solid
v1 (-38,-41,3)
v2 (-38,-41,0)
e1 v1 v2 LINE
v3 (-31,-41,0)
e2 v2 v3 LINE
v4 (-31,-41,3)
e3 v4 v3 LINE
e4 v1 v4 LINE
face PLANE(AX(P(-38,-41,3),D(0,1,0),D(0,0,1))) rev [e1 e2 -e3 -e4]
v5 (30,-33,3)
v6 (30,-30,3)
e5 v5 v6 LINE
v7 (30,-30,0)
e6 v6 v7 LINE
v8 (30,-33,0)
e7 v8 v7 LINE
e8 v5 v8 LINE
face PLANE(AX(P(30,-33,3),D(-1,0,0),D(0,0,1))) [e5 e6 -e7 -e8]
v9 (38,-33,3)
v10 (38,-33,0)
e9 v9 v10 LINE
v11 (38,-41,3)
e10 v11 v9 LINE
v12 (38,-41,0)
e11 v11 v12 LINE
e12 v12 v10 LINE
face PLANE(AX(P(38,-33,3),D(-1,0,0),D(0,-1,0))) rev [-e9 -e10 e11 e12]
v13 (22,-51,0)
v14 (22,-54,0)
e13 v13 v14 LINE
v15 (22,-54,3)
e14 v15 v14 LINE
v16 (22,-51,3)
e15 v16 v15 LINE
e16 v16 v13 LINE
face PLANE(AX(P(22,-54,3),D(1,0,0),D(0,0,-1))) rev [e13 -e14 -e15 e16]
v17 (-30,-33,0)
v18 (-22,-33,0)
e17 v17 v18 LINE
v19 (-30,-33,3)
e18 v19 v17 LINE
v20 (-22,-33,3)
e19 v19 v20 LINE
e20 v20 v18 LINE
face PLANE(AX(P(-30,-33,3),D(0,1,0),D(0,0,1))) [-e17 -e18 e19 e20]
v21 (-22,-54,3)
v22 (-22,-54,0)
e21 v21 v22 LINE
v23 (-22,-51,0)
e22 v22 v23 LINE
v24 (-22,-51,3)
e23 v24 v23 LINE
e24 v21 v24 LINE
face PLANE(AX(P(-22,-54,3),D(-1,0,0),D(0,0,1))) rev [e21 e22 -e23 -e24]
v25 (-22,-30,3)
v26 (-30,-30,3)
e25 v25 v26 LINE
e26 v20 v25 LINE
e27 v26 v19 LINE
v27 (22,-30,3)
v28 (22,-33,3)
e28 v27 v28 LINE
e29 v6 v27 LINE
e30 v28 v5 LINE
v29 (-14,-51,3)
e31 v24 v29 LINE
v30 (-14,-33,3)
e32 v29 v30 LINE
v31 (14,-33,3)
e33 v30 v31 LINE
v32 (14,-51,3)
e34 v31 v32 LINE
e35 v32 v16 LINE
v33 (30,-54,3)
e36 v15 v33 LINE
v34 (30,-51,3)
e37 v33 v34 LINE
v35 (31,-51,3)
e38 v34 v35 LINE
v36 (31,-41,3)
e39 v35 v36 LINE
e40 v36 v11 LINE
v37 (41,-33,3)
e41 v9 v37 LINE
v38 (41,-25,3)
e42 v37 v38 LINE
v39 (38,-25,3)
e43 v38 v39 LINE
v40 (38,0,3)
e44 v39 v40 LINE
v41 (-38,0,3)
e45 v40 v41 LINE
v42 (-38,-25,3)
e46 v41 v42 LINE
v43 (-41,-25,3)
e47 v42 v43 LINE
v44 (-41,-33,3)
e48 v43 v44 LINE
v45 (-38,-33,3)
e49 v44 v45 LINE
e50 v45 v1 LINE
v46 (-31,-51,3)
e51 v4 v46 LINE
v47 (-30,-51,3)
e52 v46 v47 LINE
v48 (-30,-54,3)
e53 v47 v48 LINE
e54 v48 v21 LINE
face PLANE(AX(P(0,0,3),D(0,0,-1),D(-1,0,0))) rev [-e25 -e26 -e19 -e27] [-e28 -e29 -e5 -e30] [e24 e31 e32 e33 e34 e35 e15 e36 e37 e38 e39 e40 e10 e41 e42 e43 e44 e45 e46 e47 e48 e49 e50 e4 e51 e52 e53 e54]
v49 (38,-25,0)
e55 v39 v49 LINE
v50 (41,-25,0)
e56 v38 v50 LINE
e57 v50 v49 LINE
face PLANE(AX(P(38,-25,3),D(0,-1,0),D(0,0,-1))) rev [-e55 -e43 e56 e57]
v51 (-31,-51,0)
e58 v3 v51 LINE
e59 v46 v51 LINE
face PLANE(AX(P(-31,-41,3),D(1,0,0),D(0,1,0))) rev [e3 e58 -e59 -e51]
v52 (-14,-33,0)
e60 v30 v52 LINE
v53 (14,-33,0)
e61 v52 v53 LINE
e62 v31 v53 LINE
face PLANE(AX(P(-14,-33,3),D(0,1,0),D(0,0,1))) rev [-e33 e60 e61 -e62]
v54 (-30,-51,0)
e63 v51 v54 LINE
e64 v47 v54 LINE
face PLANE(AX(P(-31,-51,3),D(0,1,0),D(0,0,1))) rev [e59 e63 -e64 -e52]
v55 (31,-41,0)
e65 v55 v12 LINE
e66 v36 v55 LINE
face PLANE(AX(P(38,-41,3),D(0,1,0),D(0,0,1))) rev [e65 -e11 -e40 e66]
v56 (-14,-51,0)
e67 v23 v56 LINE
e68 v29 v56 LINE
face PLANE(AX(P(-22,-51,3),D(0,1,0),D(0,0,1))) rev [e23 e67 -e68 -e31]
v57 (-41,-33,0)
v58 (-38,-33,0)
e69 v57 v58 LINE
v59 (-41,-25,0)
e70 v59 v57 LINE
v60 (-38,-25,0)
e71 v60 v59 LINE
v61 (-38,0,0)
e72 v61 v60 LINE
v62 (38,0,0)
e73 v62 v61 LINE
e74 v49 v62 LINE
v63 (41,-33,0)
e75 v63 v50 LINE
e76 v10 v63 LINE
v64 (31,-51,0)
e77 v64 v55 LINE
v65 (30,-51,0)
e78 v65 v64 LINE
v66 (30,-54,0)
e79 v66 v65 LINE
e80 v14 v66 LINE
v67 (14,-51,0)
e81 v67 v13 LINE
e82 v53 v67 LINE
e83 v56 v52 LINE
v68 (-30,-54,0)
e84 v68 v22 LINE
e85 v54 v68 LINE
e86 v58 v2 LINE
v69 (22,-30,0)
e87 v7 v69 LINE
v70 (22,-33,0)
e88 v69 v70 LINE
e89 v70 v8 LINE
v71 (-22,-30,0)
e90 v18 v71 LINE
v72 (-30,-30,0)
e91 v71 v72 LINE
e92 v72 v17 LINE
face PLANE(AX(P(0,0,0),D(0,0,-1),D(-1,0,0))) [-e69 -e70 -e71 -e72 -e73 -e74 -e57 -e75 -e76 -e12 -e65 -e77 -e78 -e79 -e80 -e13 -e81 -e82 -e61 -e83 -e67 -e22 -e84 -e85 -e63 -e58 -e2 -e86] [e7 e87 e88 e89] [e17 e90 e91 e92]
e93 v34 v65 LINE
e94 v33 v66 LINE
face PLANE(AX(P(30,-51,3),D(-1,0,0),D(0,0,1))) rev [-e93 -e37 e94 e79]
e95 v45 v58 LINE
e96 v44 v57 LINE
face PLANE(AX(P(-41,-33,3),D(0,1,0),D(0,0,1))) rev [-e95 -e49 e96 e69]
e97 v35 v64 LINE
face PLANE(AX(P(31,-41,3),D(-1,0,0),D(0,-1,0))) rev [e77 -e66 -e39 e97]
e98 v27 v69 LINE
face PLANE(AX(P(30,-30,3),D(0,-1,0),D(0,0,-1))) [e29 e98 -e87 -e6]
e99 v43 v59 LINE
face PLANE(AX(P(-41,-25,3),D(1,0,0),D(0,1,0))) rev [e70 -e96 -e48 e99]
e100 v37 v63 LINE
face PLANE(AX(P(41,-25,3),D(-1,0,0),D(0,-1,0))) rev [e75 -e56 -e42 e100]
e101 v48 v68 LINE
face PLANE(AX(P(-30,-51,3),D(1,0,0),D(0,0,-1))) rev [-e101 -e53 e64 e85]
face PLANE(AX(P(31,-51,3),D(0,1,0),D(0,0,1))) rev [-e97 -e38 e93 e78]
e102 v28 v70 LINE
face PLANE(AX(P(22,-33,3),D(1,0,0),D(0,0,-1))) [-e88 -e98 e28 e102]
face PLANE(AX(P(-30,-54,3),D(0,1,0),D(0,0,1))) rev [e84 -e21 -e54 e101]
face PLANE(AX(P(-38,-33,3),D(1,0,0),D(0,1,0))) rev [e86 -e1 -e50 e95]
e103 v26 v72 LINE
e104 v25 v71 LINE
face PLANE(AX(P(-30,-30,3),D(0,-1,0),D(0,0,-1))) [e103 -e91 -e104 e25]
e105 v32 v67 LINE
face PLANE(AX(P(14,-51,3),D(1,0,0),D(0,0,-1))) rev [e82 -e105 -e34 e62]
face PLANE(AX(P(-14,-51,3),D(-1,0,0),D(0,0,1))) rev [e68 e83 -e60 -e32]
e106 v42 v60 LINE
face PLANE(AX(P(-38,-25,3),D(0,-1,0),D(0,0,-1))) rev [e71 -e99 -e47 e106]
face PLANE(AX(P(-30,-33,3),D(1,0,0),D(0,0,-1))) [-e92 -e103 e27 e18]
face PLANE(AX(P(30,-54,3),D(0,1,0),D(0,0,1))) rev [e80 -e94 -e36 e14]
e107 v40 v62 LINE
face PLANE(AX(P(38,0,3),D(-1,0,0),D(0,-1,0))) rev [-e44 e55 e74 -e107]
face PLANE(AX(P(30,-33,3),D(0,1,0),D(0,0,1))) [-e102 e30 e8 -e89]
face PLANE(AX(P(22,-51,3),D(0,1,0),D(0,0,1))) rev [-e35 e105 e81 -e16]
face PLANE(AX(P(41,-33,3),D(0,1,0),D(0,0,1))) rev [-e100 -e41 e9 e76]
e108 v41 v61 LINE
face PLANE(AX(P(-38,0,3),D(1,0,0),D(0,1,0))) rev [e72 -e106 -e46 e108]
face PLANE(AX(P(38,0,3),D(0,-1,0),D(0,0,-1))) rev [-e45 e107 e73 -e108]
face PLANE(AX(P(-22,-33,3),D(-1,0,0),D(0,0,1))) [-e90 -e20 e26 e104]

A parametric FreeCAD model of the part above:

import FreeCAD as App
import Part
import Sketcher

V = App.Vector


def add_polygon(sketch, points):
    """Adds a closed chain of lines whose ends are joined by coincident constraints."""
    first, n = sketch.GeometryCount, len(points)
    for a, b in zip(points, points[1:] + points[:1]):
        sketch.addGeometry(Part.LineSegment(App.Vector(*a, 0), App.Vector(*b, 0)), False)
    for i in range(n):
        sketch.addConstraint(Sketcher.Constraint("Coincident", first + i, 2, first + (i + 1) % n, 1))

doc = App.newDocument("Part")
body = doc.addObject("PartDesign::Body", "Body")

sketch1 = body.newObject("Sketcher::SketchObject", "Sketch")
sketch1.AttachmentSupport = (doc.getObject("XY_Plane"), [""])
sketch1.MapMode = "FlatFace"
add_polygon(sketch1, [(38, 0), (-38, 0), (-38, -25), (-41, -25), (-41, -33), (-38, -33), (-38, -41), (-31, -41), (-31, -51), (-30, -51), (-30, -54), (-22, -54), (-22, -51), (-14, -51), (-14, -33), (14, -33), (14, -51), (22, -51), (22, -54), (30, -54), (30, -51), (31, -51), (31, -41), (38, -41), (38, -33), (41, -33), (41, -25), (38, -25)])
add_polygon(sketch1, [(-22, -33), (-30, -33), (-30, -30), (-22, -30)])
add_polygon(sketch1, [(30, -33), (22, -33), (22, -30), (30, -30)])
sketch1.addConstraint(Sketcher.Constraint("Horizontal", 0))
sketch1.addConstraint(Sketcher.Constraint("Vertical", 1))
sketch1.addConstraint(Sketcher.Constraint("Horizontal", 2))
sketch1.addConstraint(Sketcher.Constraint("Vertical", 3))
sketch1.addConstraint(Sketcher.Constraint("Horizontal", 4))
sketch1.addConstraint(Sketcher.Constraint("Vertical", 5))
sketch1.addConstraint(Sketcher.Constraint("Horizontal", 6))
sketch1.addConstraint(Sketcher.Constraint("Vertical", 7))
sketch1.addConstraint(Sketcher.Constraint("Horizontal", 8))
sketch1.addConstraint(Sketcher.Constraint("Vertical", 9))
sketch1.addConstraint(Sketcher.Constraint("Horizontal", 10))
sketch1.addConstraint(Sketcher.Constraint("Vertical", 11))
sketch1.addConstraint(Sketcher.Constraint("Horizontal", 12))
sketch1.addConstraint(Sketcher.Constraint("Vertical", 13))
sketch1.addConstraint(Sketcher.Constraint("Horizontal", 14))
sketch1.addConstraint(Sketcher.Constraint("Vertical", 15))
sketch1.addConstraint(Sketcher.Constraint("Horizontal", 16))
sketch1.addConstraint(Sketcher.Constraint("Vertical", 17))
sketch1.addConstraint(Sketcher.Constraint("Horizontal", 18))
sketch1.addConstraint(Sketcher.Constraint("Vertical", 19))
sketch1.addConstraint(Sketcher.Constraint("Horizontal", 20))
sketch1.addConstraint(Sketcher.Constraint("Vertical", 21))
sketch1.addConstraint(Sketcher.Constraint("Horizontal", 22))
sketch1.addConstraint(Sketcher.Constraint("Vertical", 23))
sketch1.addConstraint(Sketcher.Constraint("Horizontal", 24))
sketch1.addConstraint(Sketcher.Constraint("Vertical", 25))
sketch1.addConstraint(Sketcher.Constraint("Horizontal", 26))
sketch1.addConstraint(Sketcher.Constraint("Vertical", 27))
sketch1.addConstraint(Sketcher.Constraint("Horizontal", 28))
sketch1.addConstraint(Sketcher.Constraint("Vertical", 29))
sketch1.addConstraint(Sketcher.Constraint("Horizontal", 30))
sketch1.addConstraint(Sketcher.Constraint("Vertical", 31))
sketch1.addConstraint(Sketcher.Constraint("Horizontal", 32))
sketch1.addConstraint(Sketcher.Constraint("Vertical", 33))
sketch1.addConstraint(Sketcher.Constraint("Horizontal", 34))
sketch1.addConstraint(Sketcher.Constraint("Vertical", 35))
sketch1.addConstraint(Sketcher.Constraint("Symmetric", 0, 2, 27, 2, -1, 1))
sketch1.addConstraint(Sketcher.Constraint("Symmetric", 12, 2, 15, 2, -2))
sketch1.addConstraint(Sketcher.Constraint("Symmetric", 10, 2, 17, 2, -2))
sketch1.addConstraint(Sketcher.Constraint("Symmetric", 8, 2, 19, 2, -2))
sketch1.addConstraint(Sketcher.Constraint("Symmetric", 6, 2, 21, 2, -2))
sketch1.addConstraint(Sketcher.Constraint("Symmetric", 4, 2, 23, 2, -2))
sketch1.addConstraint(Sketcher.Constraint("Symmetric", 2, 2, 25, 2, -2))
sketch1.addConstraint(Sketcher.Constraint("Symmetric", 31, 2, 32, 2, -2))
sketch1.addConstraint(Sketcher.Constraint("Symmetric", 29, 2, 34, 2, -2))
sketch1.addConstraint(Sketcher.Constraint("Horizontal", 8, 2, 11, 2))
sketch1.addConstraint(Sketcher.Constraint("Horizontal", 4, 2, 13, 2))
sketch1.addConstraint(Sketcher.Constraint("Horizontal", 24, 2, 28, 2))
sketch1.addConstraint(Sketcher.Constraint("Vertical", 1, 2, 4, 2))
sketch1.addConstraint(Sketcher.Constraint("Vertical", 9, 2, 28, 2))
sketch1.addConstraint(Sketcher.Constraint("Vertical", 11, 2, 30, 2))
sketch1.addConstraint(Sketcher.Constraint("Equal", 10, 12))
sketch1.addConstraint(Sketcher.Constraint("Equal", 34, 3))
sketch1.addConstraint(Sketcher.Constraint("Equal", 3, 5))
sketch1.addConstraint(Sketcher.Constraint("Equal", 26, 9))
sketch1.addConstraint(Sketcher.Constraint("Equal", 19, 29))
sketch1.addConstraint(Sketcher.Constraint("DistanceX", 0, 2, 0, 1, 76.0))
sketch1.addConstraint(Sketcher.Constraint("DistanceX", 2, 2, 2, 1, 3.0))
sketch1.addConstraint(Sketcher.Constraint("DistanceX", 6, 1, 6, 2, 7.0))
sketch1.addConstraint(Sketcher.Constraint("DistanceX", 8, 1, 8, 2, 1.0))
sketch1.addConstraint(Sketcher.Constraint("DistanceX", 10, 1, 10, 2, 8.0))
sketch1.addConstraint(Sketcher.Constraint("DistanceY", 1, 2, 1, 1, 25.0))
sketch1.addConstraint(Sketcher.Constraint("DistanceY", 7, 2, 7, 1, 10.0))
pad1 = body.newObject("PartDesign::Pad", "Pad")
pad1.Profile = sketch1
pad1.Length = 3

doc.recompute()
